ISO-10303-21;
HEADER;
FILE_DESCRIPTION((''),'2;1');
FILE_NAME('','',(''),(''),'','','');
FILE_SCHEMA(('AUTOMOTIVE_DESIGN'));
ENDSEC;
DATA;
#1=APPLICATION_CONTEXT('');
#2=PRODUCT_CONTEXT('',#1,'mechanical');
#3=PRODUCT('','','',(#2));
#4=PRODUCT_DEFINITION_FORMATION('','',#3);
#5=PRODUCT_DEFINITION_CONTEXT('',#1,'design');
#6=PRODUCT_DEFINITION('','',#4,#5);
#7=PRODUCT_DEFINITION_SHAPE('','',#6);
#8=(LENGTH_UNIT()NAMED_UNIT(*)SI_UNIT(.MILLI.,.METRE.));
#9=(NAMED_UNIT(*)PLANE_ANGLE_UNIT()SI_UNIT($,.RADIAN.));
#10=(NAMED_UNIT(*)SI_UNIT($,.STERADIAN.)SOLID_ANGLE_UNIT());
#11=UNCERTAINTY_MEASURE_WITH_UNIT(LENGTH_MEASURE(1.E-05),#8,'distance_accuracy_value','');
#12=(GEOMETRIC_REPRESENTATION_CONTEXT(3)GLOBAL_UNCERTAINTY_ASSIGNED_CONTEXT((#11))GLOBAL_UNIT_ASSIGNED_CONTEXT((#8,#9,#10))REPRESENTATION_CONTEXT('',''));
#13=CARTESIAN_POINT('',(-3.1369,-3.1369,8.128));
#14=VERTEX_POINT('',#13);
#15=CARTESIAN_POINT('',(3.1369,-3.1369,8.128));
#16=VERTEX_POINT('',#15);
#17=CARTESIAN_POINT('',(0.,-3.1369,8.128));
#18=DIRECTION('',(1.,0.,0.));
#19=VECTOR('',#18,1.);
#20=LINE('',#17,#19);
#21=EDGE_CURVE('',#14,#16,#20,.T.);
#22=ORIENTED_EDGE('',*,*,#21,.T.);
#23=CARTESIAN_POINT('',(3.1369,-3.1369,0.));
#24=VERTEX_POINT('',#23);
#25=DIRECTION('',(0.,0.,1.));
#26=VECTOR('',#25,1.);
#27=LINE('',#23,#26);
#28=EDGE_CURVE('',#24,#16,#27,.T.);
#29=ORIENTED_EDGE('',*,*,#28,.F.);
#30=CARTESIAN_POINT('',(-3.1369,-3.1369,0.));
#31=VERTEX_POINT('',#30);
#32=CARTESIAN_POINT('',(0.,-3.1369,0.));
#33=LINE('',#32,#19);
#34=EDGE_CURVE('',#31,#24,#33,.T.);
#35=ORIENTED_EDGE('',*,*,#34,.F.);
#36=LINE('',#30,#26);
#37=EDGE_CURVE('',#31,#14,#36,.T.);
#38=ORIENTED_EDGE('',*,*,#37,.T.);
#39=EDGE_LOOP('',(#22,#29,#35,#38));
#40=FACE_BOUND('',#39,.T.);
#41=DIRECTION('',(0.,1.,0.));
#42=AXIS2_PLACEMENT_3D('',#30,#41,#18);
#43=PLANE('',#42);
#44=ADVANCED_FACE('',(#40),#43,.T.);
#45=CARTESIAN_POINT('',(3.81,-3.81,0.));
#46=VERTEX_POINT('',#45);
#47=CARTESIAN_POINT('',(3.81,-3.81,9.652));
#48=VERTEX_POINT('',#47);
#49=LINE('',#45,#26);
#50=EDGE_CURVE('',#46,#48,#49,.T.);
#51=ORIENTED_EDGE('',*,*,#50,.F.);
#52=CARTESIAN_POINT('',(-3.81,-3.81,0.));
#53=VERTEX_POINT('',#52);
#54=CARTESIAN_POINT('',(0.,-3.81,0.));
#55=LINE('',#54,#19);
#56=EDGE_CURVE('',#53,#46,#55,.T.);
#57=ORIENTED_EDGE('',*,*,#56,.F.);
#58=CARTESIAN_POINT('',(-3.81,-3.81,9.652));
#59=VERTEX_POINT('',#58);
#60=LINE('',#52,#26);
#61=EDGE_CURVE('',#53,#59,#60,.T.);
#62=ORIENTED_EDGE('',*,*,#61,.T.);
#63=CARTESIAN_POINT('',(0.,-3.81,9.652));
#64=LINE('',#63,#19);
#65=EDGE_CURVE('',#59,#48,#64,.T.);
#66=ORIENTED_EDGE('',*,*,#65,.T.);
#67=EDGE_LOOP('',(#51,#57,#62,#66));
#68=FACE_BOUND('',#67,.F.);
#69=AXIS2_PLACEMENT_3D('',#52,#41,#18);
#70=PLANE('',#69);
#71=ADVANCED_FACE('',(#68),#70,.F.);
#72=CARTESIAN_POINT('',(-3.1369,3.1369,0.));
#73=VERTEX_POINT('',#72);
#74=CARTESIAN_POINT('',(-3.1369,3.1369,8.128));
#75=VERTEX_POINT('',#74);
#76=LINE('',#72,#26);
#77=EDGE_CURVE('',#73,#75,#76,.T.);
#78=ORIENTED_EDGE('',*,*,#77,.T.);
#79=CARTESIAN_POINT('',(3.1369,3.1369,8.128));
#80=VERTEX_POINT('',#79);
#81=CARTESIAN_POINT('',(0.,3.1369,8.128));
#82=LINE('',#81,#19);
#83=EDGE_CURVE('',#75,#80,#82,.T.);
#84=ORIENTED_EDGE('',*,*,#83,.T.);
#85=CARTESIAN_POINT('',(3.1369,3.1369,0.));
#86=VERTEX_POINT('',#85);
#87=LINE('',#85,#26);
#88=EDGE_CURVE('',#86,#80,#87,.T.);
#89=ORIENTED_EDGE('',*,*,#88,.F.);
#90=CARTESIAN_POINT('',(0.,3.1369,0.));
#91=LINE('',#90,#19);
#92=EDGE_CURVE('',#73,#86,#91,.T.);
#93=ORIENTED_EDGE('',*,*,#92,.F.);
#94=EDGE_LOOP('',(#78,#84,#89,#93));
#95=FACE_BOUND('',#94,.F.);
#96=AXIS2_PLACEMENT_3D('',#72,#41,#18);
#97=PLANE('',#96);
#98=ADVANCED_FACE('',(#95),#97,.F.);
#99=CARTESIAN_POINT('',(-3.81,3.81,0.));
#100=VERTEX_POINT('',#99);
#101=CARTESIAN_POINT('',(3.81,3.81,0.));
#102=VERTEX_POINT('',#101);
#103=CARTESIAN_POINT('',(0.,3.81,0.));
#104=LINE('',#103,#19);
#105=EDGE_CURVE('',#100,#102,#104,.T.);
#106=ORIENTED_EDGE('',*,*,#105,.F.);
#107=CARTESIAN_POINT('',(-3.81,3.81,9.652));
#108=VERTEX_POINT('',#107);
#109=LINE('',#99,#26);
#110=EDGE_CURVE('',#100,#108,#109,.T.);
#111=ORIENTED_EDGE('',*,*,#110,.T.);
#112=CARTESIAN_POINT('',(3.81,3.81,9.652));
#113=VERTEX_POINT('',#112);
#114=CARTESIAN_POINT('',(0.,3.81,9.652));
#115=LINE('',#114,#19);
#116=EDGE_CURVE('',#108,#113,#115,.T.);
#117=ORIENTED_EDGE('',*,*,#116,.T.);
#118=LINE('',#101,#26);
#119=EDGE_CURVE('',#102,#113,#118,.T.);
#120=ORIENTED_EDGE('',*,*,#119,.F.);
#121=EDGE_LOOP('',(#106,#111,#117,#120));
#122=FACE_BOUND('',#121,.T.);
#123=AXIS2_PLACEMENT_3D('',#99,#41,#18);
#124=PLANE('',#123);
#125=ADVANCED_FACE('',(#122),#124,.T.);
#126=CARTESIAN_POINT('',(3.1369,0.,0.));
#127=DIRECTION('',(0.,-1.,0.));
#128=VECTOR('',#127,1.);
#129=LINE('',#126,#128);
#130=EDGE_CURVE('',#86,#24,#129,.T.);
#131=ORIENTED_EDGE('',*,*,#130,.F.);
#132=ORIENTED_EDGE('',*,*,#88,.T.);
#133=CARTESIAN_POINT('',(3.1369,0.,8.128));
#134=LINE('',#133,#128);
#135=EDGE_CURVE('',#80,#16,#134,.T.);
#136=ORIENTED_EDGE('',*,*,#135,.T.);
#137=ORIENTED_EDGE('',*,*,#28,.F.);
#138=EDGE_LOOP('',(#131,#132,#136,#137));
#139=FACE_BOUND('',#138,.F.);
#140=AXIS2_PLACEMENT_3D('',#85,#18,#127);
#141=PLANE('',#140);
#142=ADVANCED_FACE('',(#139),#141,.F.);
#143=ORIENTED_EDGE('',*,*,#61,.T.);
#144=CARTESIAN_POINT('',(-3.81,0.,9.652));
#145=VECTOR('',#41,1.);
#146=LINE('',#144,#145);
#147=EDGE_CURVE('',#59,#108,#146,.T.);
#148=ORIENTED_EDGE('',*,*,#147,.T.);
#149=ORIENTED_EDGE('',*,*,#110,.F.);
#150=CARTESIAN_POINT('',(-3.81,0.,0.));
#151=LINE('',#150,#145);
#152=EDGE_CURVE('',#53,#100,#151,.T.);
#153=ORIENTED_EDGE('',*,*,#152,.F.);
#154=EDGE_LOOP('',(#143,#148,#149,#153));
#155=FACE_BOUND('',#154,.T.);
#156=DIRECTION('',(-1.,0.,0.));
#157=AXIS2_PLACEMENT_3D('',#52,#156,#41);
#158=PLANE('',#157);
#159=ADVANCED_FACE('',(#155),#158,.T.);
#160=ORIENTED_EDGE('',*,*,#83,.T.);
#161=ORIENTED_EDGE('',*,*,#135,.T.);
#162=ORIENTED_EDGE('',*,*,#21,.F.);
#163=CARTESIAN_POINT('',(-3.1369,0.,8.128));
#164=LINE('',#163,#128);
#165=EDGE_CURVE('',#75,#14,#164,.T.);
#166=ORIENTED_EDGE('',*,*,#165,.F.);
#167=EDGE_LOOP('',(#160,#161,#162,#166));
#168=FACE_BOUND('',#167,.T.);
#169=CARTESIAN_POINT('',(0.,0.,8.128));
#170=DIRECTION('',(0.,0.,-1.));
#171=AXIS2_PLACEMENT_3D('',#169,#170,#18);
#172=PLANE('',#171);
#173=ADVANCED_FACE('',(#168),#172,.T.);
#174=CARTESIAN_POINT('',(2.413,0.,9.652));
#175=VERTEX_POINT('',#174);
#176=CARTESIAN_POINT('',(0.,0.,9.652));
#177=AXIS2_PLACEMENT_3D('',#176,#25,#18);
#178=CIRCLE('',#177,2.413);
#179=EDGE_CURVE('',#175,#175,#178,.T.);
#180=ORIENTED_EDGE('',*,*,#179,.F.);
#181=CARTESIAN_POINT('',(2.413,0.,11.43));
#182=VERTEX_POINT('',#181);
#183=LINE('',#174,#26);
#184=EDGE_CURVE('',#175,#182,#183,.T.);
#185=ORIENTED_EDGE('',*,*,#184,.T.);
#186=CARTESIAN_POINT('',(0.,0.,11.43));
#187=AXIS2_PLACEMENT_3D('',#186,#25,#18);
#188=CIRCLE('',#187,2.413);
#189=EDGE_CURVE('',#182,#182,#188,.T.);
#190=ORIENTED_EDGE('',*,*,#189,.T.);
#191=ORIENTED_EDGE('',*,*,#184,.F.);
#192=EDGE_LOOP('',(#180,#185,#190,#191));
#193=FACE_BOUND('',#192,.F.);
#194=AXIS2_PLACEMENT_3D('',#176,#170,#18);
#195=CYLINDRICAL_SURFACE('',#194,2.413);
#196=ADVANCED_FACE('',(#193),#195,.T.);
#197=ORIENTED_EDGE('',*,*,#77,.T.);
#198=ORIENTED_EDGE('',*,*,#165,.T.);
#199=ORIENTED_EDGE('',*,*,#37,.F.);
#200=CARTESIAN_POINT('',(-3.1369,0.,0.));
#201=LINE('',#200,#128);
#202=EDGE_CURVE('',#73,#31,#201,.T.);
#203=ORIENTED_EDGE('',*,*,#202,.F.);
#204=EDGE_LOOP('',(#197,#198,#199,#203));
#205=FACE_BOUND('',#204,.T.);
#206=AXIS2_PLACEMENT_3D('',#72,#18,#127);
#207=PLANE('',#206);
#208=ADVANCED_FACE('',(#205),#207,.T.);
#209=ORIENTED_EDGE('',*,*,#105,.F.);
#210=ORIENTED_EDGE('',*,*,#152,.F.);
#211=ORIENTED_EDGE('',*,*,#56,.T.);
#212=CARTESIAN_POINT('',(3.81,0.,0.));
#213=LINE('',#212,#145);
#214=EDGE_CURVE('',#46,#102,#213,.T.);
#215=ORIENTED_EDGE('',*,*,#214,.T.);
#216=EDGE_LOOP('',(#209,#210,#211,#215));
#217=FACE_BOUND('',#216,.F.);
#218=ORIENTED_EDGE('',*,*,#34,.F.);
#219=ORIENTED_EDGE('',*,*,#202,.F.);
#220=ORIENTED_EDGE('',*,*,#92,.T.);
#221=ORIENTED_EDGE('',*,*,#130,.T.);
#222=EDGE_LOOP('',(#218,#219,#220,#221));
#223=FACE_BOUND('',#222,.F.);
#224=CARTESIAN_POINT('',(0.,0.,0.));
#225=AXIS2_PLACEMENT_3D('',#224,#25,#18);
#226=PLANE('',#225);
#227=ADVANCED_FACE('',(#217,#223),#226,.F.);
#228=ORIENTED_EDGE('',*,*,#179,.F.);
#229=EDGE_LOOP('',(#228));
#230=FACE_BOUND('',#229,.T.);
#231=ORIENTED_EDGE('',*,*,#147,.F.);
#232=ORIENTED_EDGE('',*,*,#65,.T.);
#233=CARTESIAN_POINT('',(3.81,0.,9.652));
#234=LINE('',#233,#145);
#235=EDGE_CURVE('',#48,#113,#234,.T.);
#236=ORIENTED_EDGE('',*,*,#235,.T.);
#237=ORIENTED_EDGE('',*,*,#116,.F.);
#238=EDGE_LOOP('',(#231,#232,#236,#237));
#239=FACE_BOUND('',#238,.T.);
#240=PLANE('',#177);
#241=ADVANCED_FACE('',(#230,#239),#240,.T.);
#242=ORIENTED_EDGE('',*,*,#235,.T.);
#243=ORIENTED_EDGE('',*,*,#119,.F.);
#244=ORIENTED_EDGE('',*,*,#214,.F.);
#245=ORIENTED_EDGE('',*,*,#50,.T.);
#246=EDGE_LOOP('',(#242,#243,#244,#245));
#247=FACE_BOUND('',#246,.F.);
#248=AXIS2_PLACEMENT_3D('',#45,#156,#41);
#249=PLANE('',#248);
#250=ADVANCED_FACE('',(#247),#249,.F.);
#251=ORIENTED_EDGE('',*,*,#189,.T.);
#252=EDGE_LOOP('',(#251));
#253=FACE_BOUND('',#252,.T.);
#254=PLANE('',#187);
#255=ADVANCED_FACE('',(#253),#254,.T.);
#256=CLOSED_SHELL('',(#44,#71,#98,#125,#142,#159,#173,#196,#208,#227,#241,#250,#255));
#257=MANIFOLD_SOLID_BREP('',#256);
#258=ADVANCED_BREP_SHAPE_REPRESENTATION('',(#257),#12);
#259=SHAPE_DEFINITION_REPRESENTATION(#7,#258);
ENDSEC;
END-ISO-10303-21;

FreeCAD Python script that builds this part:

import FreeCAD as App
import Part
import Sketcher
Q = App.Units.Quantity

doc = App.newDocument("Part")
params = doc.addObject("Spreadsheet::Sheet", "Params")
for row, (alias, value) in enumerate([
    ("sketch1_width", "0.3 in"),
    ("pad1_length", "0.38 in"),
    ("sketch2_diameter", "0.19 in"),
    ("pad2_length", "0.07 in"),
    ("sketch3_width", "0.247 in"),
    ("pocket1_length", "0.32 in"),
], start=1):
    params.set(f"A{row}", alias)
    params.set(f"B{row}", "=" + value)
    params.setAlias(f"B{row}", alias)

body = doc.addObject("PartDesign::Body", "Body")

# Sketch on XY plane
sketch1 = doc.addObject("Sketcher::SketchObject", "Sketch")
body.addObject(sketch1)
sketch1.AttachmentSupport = (doc.XY_Plane, [""])
sketch1.MapMode = "FlatFace"
sketch1.addGeometry([
    Part.LineSegment(App.Vector(-4, 4, 0), App.Vector(-4, -4, 0)),
    Part.LineSegment(App.Vector(-4, -4, 0), App.Vector(4, -4, 0)),
    Part.LineSegment(App.Vector(4, -4, 0), App.Vector(4, 4, 0)),
    Part.LineSegment(App.Vector(4, 4, 0), App.Vector(-4, 4, 0)),
], False)
sketch1.addConstraint([
    Sketcher.Constraint("Coincident", 0, 2, 1, 1),
    Sketcher.Constraint("Coincident", 1, 2, 2, 1),
    Sketcher.Constraint("Coincident", 2, 2, 3, 1),
    Sketcher.Constraint("Coincident", 3, 2, 0, 1),
    Sketcher.Constraint("Vertical", 0),
    Sketcher.Constraint("Horizontal", 1),
    Sketcher.Constraint("Vertical", 2),
    Sketcher.Constraint("Horizontal", 3),
    Sketcher.Constraint("Symmetric", 0, 2, 2, 2, -1, 1),
    Sketcher.Constraint("Equal", 3, 0),
    Sketcher.Constraint("DistanceX", 1, 1, 1, 2, Q("0.3 in")),
])
sketch1.setExpression("Constraints[10]", "Params.sketch1_width")
pad1 = doc.addObject("PartDesign::Pad", "Pad")
body.addObject(pad1)
pad1.Profile = sketch1
pad1.setExpression("Length", "Params.pad1_length")

# Sketch on XY plane
sketch2 = doc.addObject("Sketcher::SketchObject", "Sketch001")
body.addObject(sketch2)
sketch2.AttachmentSupport = (doc.XY_Plane, [""])
sketch2.MapMode = "FlatFace"
sketch2.AttachmentOffset = App.Placement(App.Vector(0, 0, 0.38 * 25.4), App.Rotation())
sketch2.addGeometry(Part.Circle(App.Vector(0, 0, 0), App.Vector(0, 0, 1), 2.4), False)
sketch2.addConstraint([
    Sketcher.Constraint("Coincident", 0, 3, -1, 1),
    Sketcher.Constraint("Diameter", 0, Q("0.19 in")),
])
sketch2.setExpression("Constraints[1]", "Params.sketch2_diameter")
pad2 = doc.addObject("PartDesign::Pad", "Pad001")
body.addObject(pad2)
pad2.Profile = sketch2
pad2.setExpression("Length", "Params.pad2_length")

# Sketch on XY plane
sketch3 = doc.addObject("Sketcher::SketchObject", "Sketch002")
body.addObject(sketch3)
sketch3.AttachmentSupport = (doc.XY_Plane, [""])
sketch3.MapMode = "FlatFace"
sketch3.addGeometry([
    Part.LineSegment(App.Vector(-3, -3, 0), App.Vector(-3, 3, 0)),
    Part.LineSegment(App.Vector(-3, 3, 0), App.Vector(3, 3, 0)),
    Part.LineSegment(App.Vector(3, 3, 0), App.Vector(3, -3, 0)),
    Part.LineSegment(App.Vector(3, -3, 0), App.Vector(-3, -3, 0)),
], False)
sketch3.addConstraint([
    Sketcher.Constraint("Coincident", 0, 2, 1, 1),
    Sketcher.Constraint("Coincident", 1, 2, 2, 1),
    Sketcher.Constraint("Coincident", 2, 2, 3, 1),
    Sketcher.Constraint("Coincident", 3, 2, 0, 1),
    Sketcher.Constraint("Vertical", 0),
    Sketcher.Constraint("Horizontal", 1),
    Sketcher.Constraint("Vertical", 2),
    Sketcher.Constraint("Horizontal", 3),
    Sketcher.Constraint("Symmetric", 0, 2, 2, 2, -1, 1),
    Sketcher.Constraint("Equal", 3, 0),
    Sketcher.Constraint("DistanceX", 1, 1, 1, 2, Q("0.247 in")),
])
sketch3.setExpression("Constraints[10]", "Params.sketch3_width")
pocket1 = doc.addObject("PartDesign::Pocket", "Pocket")
body.addObject(pocket1)
pocket1.Profile = sketch3
pocket1.setExpression("Length", "Params.pocket1_length")
pocket1.Reversed = True

doc.recompute()
